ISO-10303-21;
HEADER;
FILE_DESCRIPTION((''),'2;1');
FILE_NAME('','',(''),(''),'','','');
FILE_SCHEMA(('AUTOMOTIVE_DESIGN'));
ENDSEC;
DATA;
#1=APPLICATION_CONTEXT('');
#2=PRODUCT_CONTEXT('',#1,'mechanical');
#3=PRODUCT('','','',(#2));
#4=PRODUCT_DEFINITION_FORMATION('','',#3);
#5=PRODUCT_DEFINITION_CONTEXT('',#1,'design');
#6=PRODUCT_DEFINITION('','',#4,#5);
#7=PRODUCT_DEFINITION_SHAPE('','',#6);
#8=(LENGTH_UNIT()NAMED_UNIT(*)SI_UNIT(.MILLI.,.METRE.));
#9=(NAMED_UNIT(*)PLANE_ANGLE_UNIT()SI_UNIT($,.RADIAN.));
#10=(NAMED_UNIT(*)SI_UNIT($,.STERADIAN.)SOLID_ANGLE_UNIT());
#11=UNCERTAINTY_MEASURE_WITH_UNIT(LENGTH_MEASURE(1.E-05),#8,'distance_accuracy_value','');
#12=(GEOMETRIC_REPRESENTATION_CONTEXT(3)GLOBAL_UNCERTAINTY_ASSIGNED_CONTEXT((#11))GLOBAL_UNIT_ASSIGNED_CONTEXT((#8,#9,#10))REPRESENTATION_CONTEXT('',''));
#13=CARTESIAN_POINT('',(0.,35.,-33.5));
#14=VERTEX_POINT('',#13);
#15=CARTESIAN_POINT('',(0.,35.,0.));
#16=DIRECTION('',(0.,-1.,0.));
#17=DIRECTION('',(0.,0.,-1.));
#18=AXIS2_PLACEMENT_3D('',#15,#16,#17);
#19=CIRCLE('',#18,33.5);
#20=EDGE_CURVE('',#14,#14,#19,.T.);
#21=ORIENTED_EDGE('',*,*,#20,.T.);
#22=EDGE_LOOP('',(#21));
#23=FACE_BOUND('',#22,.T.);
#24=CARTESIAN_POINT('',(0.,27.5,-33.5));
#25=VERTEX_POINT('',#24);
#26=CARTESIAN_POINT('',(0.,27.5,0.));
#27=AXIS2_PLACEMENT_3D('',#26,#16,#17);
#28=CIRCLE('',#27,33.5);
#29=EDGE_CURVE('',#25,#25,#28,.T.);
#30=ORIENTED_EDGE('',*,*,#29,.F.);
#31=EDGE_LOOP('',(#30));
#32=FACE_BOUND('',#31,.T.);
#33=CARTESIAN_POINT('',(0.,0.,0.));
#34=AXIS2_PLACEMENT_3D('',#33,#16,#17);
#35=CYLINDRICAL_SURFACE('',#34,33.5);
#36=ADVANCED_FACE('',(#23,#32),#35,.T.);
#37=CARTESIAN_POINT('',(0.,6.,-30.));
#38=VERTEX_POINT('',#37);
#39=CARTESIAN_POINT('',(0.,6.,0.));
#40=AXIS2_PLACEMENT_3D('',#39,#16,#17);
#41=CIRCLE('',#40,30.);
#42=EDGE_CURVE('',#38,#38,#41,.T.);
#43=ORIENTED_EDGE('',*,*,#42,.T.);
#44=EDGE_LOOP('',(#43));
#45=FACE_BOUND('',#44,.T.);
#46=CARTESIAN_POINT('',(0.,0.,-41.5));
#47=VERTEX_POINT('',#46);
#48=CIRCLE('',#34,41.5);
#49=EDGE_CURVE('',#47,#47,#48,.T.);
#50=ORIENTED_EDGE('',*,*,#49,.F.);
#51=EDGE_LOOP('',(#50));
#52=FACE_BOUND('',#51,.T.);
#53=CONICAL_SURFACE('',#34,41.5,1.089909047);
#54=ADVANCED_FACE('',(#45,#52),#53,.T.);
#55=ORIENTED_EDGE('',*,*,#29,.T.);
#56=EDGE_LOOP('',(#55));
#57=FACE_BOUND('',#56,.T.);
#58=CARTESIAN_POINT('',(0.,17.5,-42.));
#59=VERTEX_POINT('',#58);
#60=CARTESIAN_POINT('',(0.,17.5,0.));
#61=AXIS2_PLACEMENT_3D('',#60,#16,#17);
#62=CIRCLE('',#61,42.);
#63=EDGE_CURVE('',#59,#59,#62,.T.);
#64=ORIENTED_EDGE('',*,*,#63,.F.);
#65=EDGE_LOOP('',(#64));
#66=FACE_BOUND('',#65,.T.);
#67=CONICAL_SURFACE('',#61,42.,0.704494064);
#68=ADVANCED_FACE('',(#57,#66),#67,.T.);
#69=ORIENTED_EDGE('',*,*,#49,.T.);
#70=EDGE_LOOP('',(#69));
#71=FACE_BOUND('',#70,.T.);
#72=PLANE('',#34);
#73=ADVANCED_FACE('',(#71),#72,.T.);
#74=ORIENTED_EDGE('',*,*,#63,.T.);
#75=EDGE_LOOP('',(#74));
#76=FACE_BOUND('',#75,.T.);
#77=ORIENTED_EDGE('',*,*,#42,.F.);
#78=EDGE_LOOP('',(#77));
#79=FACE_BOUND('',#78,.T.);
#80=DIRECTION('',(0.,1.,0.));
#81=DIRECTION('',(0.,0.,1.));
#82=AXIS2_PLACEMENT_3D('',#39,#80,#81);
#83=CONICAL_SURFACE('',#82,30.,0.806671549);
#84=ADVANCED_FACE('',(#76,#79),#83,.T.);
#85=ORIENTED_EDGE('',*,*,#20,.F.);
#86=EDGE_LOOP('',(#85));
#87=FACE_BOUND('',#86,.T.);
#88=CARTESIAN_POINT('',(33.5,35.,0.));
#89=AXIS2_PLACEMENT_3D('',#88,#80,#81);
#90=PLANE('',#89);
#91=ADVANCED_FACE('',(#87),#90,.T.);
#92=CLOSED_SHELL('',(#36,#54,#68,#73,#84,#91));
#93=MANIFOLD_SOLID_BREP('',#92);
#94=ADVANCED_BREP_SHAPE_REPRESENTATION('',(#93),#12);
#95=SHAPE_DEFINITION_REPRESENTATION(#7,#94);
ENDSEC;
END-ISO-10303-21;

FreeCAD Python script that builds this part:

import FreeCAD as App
import Part
import Sketcher

V = App.Vector
Q = App.Units.Quantity


def add_polygon(sketch, points):
    """Adds a closed chain of lines whose ends are joined by coincident constraints."""
    first, n = sketch.GeometryCount, len(points)
    for a, b in zip(points, points[1:] + points[:1]):
        sketch.addGeometry(Part.LineSegment(App.Vector(*a, 0), App.Vector(*b, 0)), False)
    for i in range(n):
        sketch.addConstraint(Sketcher.Constraint("Coincident", first + i, 2, first + (i + 1) % n, 1))

doc = App.newDocument("Part")
params = doc.addObject("Spreadsheet::Sheet", "Params")
for row, (alias, value) in enumerate([
    ("sketch1_height", "35 mm"),
    ("sketch1_width", "41.5 mm"),
    ("sketch1_width2", "33.5 mm"),
    ("sketch1_height2", "7.5 mm"),
    ("revolution_angle", "360 deg"),
], start=1):
    params.set(f"A{row}", alias)
    params.set(f"B{row}", "=" + value)
    params.setAlias(f"B{row}", alias)

body = doc.addObject("PartDesign::Body", "Body")

# Sketch on XY plane
sketch1 = doc.addObject("Sketcher::SketchObject", "Sketch")
body.addObject(sketch1)
sketch1.AttachmentSupport = (doc.XY_Plane, [""])
sketch1.MapMode = "FlatFace"
add_polygon(sketch1, [(0, 35), (0, 0), (41.5, 0), (30, 6), (42, 17.5), (33.5, 27.5), (33.5, 35)])  # lines 0-6
sketch1.addConstraint([
    Sketcher.Constraint("Vertical", 0),
    Sketcher.Constraint("Horizontal", 1),
    Sketcher.Constraint("Vertical", 5),
    Sketcher.Constraint("Horizontal", 6),
    Sketcher.Constraint("Coincident", 0, 2, -1, 1),
    Sketcher.Constraint("DistanceY", 0, 2, 0, 1, Q("35 mm")),
    Sketcher.Constraint("DistanceX", 1, 1, 1, 2, Q("41.5 mm")),
    Sketcher.Constraint("DistanceX", 6, 2, 6, 1, Q("33.5 mm")),
    Sketcher.Constraint("DistanceY", 5, 1, 5, 2, Q("7.5 mm")),
    Sketcher.Constraint("DistanceX", -1, 1, 2, 2, Q("30 mm")),
    Sketcher.Constraint("DistanceY", -1, 1, 2, 2, Q("6 mm")),
    Sketcher.Constraint("DistanceX", -1, 1, 3, 2, Q("42 mm")),
    Sketcher.Constraint("DistanceY", 3, 2, 4, 2, Q("10 mm")),
])
sketch1.setExpression("Constraints[12]", "Params.sketch1_height")
sketch1.setExpression("Constraints[13]", "Params.sketch1_width")
sketch1.setExpression("Constraints[14]", "Params.sketch1_width2")
sketch1.setExpression("Constraints[15]", "Params.sketch1_height2")
revolution = doc.addObject("PartDesign::Revolution", "Revolution")
body.addObject(revolution)
revolution.Profile = sketch1
revolution.ReferenceAxis = (sketch1, ["V_Axis"])
revolution.setExpression("Angle", "Params.revolution_angle")

doc.recompute()
